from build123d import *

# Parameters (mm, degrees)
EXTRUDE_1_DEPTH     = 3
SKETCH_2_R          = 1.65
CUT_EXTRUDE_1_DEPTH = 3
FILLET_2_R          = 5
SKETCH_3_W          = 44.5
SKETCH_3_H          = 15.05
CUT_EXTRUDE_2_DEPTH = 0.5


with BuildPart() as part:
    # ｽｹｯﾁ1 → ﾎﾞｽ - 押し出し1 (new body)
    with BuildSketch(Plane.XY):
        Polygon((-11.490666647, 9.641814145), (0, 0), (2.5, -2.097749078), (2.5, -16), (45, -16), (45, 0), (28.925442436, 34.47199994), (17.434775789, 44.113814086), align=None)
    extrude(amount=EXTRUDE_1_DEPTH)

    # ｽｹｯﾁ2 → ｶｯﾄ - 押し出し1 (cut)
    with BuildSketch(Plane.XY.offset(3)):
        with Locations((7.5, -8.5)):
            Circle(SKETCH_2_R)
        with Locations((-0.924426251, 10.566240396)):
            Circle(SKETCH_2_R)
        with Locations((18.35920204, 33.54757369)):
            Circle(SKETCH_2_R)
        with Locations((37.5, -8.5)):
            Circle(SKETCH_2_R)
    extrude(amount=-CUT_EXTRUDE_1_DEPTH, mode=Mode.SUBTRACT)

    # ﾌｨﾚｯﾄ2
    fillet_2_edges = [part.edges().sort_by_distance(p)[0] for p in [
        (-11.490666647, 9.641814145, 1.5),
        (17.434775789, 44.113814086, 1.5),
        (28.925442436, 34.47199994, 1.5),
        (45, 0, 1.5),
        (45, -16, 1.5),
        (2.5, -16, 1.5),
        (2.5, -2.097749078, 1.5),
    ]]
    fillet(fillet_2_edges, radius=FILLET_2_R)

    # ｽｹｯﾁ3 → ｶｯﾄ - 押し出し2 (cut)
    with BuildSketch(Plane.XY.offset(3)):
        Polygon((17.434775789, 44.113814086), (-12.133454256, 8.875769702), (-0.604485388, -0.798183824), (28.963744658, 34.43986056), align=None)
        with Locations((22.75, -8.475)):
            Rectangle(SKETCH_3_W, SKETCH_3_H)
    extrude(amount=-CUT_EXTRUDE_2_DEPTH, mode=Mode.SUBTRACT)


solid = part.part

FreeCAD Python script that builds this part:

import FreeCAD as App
import Part
import Sketcher

V = App.Vector
Q = App.Units.Quantity


def edges_at(feature, points):
    """Names of the edges that pass closest to the given points."""
    edges = feature.Shape.Edges
    near = lambda p: min(range(len(edges)), key=lambda i: edges[i].distToShape(Part.Vertex(*p))[0])
    return sorted({f"Edge{near(p) + 1}" for p in points})

doc = App.newDocument("Part")
body = doc.addObject("PartDesign::Body", "Body")

sketch1 = body.newObject("Sketcher::SketchObject", "Sketch")
sketch1.AttachmentSupport = (doc.getObject("XY_Plane"), [""])
sketch1.MapMode = "FlatFace"
sketch1.addGeometry(Part.LineSegment(V(-11.5, 9.6, 0), V(0, 0, 0)), False)
sketch1.addGeometry(Part.LineSegment(V(0, 0, 0), V(2.5, -2.1, 0)), False)
sketch1.addGeometry(Part.LineSegment(V(2.5, -2.1, 0), V(2.5, -16, 0)), False)
sketch1.addGeometry(Part.LineSegment(V(2.5, -16, 0), V(45, -16, 0)), False)
sketch1.addGeometry(Part.LineSegment(V(45, -16, 0), V(45, 0, 0)), False)
sketch1.addGeometry(Part.LineSegment(V(45, 0, 0), V(28.9, 34.5, 0)), False)
sketch1.addGeometry(Part.LineSegment(V(28.9, 34.5, 0), V(17.4, 44.1, 0)), False)
sketch1.addGeometry(Part.LineSegment(V(17.4, 44.1, 0), V(-11.5, 9.6, 0)), False)
sketch1.addConstraint(Sketcher.Constraint("Coincident", 0, 2, 1, 1))
sketch1.addConstraint(Sketcher.Constraint("Coincident", 1, 2, 2, 1))
sketch1.addConstraint(Sketcher.Constraint("Coincident", 2, 2, 3, 1))
sketch1.addConstraint(Sketcher.Constraint("Coincident", 3, 2, 4, 1))
sketch1.addConstraint(Sketcher.Constraint("Coincident", 4, 2, 5, 1))
sketch1.addConstraint(Sketcher.Constraint("Coincident", 5, 2, 6, 1))
sketch1.addConstraint(Sketcher.Constraint("Coincident", 6, 2, 7, 1))
sketch1.addConstraint(Sketcher.Constraint("Coincident", 7, 2, 0, 1))
sketch1.addConstraint(Sketcher.Constraint("Vertical", 2))
sketch1.addConstraint(Sketcher.Constraint("Horizontal", 3))
sketch1.addConstraint(Sketcher.Constraint("Vertical", 4))
sketch1.addConstraint(Sketcher.Constraint("Coincident", 0, 2, -1, 1))
sketch1.addConstraint(Sketcher.Constraint("PointOnObject", 4, 2, -1))
sketch1.addConstraint(Sketcher.Constraint("Parallel", 0, 1))
sketch1.addConstraint(Sketcher.Constraint("Parallel", 1, 6))
sketch1.addConstraint(Sketcher.Constraint("Perpendicular", 6, 7))
sketch1.addConstraint(Sketcher.Constraint("Equal", 0, 6))
sketch1.addConstraint(Sketcher.Constraint("DistanceY", 4, 1, 4, 2, Q("16 mm")))
sketch1.addConstraint(Sketcher.Constraint("Angle", 0, Q("-40 deg")))
sketch1.addConstraint(Sketcher.Constraint("Angle", 5, Q("115 deg")))
sketch1.addConstraint(Sketcher.Constraint("Distance", 0, Q("15 mm")))
sketch1.addConstraint(Sketcher.Constraint("Distance", 7, Q("45 mm")))
sketch1.addConstraint(Sketcher.Constraint("DistanceX", 3, 1, 3, 2, Q("42.5 mm")))
pad1 = body.newObject("PartDesign::Pad", "Pad")
pad1.Profile = sketch1
pad1.Length = 3

sketch2 = body.newObject("Sketcher::SketchObject", "Sketch001")
sketch2.AttachmentSupport = (doc.getObject("XY_Plane"), [""])
sketch2.MapMode = "FlatFace"
sketch2.AttachmentOffset = App.Placement(V(0, 0, 3), App.Rotation())
sketch2.addGeometry(Part.Circle(V(7.5, -8.5, 0), V(0, 0, 1), 1.6), False)
sketch2.addGeometry(Part.Circle(V(-0.9, 10.6, 0), V(0, 0, 1), 1.6), False)
sketch2.addGeometry(Part.Circle(V(18.4, 33.5, 0), V(0, 0, 1), 1.6), False)
sketch2.addGeometry(Part.Circle(V(37.5, -8.5, 0), V(0, 0, 1), 1.6), False)
sketch2.addConstraint(Sketcher.Constraint("Equal", 0, 1))
sketch2.addConstraint(Sketcher.Constraint("Equal", 1, 2))
sketch2.addConstraint(Sketcher.Constraint("Equal", 2, 3))
sketch2.addConstraint(Sketcher.Constraint("Horizontal", 0, 3, 3, 3))
sketch2.addConstraint(Sketcher.Constraint("Diameter", 0, Q("3.3 mm")))
sketch2.addConstraint(Sketcher.Constraint("DistanceX", 0, 3, 3, 3, Q("30 mm")))
sketch2.addConstraint(Sketcher.Constraint("DistanceX", -1, 1, 0, 3, Q("7.5 mm")))
sketch2.addConstraint(Sketcher.Constraint("DistanceY", 0, 3, -1, 1, Q("8.5 mm")))
sketch2.addConstraint(Sketcher.Constraint("DistanceY", -1, 1, 1, 3, Q("10.56624 mm")))
sketch2.addConstraint(Sketcher.Constraint("DistanceX", 1, 3, 2, 3, Q("19.283628 mm")))
sketch2.addConstraint(Sketcher.Constraint("DistanceX", 1, 3, -1, 1, Q("0.924426 mm")))
sketch2.addConstraint(Sketcher.Constraint("DistanceY", -1, 1, 2, 3, Q("33.547574 mm")))
pocket1 = body.newObject("PartDesign::Pocket", "Pocket")
pocket1.Profile = sketch2
pocket1.Length = 3
doc.recompute()

fillet = body.newObject("PartDesign::Fillet", "Fillet")
fillet.Base = (pocket1, edges_at(pocket1, [
    (-11.491, 9.642, 1.5),
    (17.435, 44.114, 1.5),
    (28.925, 34.472, 1.5),
    (45, 0, 1.5),
    (45, -16, 1.5),
    (2.5, -16, 1.5),
    (2.5, -2.098, 1.5),
]))
fillet.Radius = 5

sketch3 = body.newObject("Sketcher::SketchObject", "Sketch002")
sketch3.AttachmentSupport = (doc.getObject("XY_Plane"), [""])
sketch3.MapMode = "FlatFace"
sketch3.AttachmentOffset = App.Placement(V(0, 0, 3), App.Rotation())
sketch3.addGeometry(Part.LineSegment(V(17, 44, 0), V(-12, 9, 0)), False)
sketch3.addGeometry(Part.LineSegment(V(-12, 9, 0), V(-1, -1, 0)), False)
sketch3.addGeometry(Part.LineSegment(V(-1, -1, 0), V(29, 34, 0)), False)
sketch3.addGeometry(Part.LineSegment(V(29, 34, 0), V(17, 44, 0)), False)
sketch3.addGeometry(Part.LineSegment(V(0, -1, 0), V(0, -16, 0)), False)
sketch3.addGeometry(Part.LineSegment(V(0, -16, 0), V(45, -16, 0)), False)
sketch3.addGeometry(Part.LineSegment(V(45, -16, 0), V(45, -1, 0)), False)
sketch3.addGeometry(Part.LineSegment(V(45, -1, 0), V(0, -1, 0)), False)
sketch3.addConstraint(Sketcher.Constraint("Coincident", 0, 2, 1, 1))
sketch3.addConstraint(Sketcher.Constraint("Coincident", 1, 2, 2, 1))
sketch3.addConstraint(Sketcher.Constraint("Coincident", 2, 2, 3, 1))
sketch3.addConstraint(Sketcher.Constraint("Coincident", 3, 2, 0, 1))
sketch3.addConstraint(Sketcher.Constraint("Coincident", 4, 2, 5, 1))
sketch3.addConstraint(Sketcher.Constraint("Coincident", 5, 2, 6, 1))
sketch3.addConstraint(Sketcher.Constraint("Coincident", 6, 2, 7, 1))
sketch3.addConstraint(Sketcher.Constraint("Coincident", 7, 2, 4, 1))
sketch3.addConstraint(Sketcher.Constraint("Vertical", 4))
sketch3.addConstraint(Sketcher.Constraint("Horizontal", 5))
sketch3.addConstraint(Sketcher.Constraint("Vertical", 6))
sketch3.addConstraint(Sketcher.Constraint("Horizontal", 7))
sketch3.addConstraint(Sketcher.Constraint("Perpendicular", 0, 1))
sketch3.addConstraint(Sketcher.Constraint("Perpendicular", 1, 2))
sketch3.addConstraint(Sketcher.Constraint("Perpendicular", 2, 3))
sketch3.addConstraint(Sketcher.Constraint("Angle", 0, Q("-130 deg")))
sketch3.addConstraint(Sketcher.Constraint("Distance", 0, Q("46 mm")))
sketch3.addConstraint(Sketcher.Constraint("DistanceX", 5, 1, 5, 2, Q("44.5 mm")))
sketch3.addConstraint(Sketcher.Constraint("DistanceY", 4, 2, -1, 1, Q("16 mm")))
sketch3.addConstraint(Sketcher.Constraint("DistanceX", -1, 1, 5, 2, Q("45 mm")))
sketch3.addConstraint(Sketcher.Constraint("DistanceY", 4, 2, 4, 1, Q("15.05 mm")))
sketch3.addConstraint(Sketcher.Constraint("Distance", 1, Q("15.05 mm")))
sketch3.addConstraint(Sketcher.Constraint("DistanceY", -1, 1, 0, 2, Q("8.87577 mm")))
sketch3.addConstraint(Sketcher.Constraint("DistanceX", 0, 2, -1, 1, Q("12.133454 mm")))
pocket2 = body.newObject("PartDesign::Pocket", "Pocket001")
pocket2.Profile = sketch3
pocket2.Length = 0.5

doc.recompute()
